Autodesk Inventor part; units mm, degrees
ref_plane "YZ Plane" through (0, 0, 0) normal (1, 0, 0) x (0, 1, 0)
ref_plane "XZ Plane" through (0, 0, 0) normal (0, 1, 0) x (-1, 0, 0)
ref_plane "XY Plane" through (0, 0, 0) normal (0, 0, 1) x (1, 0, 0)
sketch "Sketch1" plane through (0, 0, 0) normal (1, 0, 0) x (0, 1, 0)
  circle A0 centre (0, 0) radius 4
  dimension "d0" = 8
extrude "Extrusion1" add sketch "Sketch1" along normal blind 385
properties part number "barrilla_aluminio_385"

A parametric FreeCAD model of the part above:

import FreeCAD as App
import Part
import Sketcher
Q = App.Units.Quantity

doc = App.newDocument("Part")
body = doc.addObject("PartDesign::Body", "Body")

# Sketch on YZ plane
sketch1 = doc.addObject("Sketcher::SketchObject", "Sketch")
body.addObject(sketch1)
sketch1.AttachmentSupport = (doc.YZ_Plane, [""])
sketch1.MapMode = "FlatFace"
sketch1.addGeometry(Part.Circle(App.Vector(0, 0, 0), App.Vector(0, 0, 1), 4), False)
sketch1.addConstraint([
    Sketcher.Constraint("Coincident", 0, 3, -1, 1),
    Sketcher.Constraint("Diameter", 0, Q("8 mm")),
])
pad1 = doc.addObject("PartDesign::Pad", "Pad")
body.addObject(pad1)
pad1.Profile = sketch1
pad1.Length = 385

doc.recompute()
